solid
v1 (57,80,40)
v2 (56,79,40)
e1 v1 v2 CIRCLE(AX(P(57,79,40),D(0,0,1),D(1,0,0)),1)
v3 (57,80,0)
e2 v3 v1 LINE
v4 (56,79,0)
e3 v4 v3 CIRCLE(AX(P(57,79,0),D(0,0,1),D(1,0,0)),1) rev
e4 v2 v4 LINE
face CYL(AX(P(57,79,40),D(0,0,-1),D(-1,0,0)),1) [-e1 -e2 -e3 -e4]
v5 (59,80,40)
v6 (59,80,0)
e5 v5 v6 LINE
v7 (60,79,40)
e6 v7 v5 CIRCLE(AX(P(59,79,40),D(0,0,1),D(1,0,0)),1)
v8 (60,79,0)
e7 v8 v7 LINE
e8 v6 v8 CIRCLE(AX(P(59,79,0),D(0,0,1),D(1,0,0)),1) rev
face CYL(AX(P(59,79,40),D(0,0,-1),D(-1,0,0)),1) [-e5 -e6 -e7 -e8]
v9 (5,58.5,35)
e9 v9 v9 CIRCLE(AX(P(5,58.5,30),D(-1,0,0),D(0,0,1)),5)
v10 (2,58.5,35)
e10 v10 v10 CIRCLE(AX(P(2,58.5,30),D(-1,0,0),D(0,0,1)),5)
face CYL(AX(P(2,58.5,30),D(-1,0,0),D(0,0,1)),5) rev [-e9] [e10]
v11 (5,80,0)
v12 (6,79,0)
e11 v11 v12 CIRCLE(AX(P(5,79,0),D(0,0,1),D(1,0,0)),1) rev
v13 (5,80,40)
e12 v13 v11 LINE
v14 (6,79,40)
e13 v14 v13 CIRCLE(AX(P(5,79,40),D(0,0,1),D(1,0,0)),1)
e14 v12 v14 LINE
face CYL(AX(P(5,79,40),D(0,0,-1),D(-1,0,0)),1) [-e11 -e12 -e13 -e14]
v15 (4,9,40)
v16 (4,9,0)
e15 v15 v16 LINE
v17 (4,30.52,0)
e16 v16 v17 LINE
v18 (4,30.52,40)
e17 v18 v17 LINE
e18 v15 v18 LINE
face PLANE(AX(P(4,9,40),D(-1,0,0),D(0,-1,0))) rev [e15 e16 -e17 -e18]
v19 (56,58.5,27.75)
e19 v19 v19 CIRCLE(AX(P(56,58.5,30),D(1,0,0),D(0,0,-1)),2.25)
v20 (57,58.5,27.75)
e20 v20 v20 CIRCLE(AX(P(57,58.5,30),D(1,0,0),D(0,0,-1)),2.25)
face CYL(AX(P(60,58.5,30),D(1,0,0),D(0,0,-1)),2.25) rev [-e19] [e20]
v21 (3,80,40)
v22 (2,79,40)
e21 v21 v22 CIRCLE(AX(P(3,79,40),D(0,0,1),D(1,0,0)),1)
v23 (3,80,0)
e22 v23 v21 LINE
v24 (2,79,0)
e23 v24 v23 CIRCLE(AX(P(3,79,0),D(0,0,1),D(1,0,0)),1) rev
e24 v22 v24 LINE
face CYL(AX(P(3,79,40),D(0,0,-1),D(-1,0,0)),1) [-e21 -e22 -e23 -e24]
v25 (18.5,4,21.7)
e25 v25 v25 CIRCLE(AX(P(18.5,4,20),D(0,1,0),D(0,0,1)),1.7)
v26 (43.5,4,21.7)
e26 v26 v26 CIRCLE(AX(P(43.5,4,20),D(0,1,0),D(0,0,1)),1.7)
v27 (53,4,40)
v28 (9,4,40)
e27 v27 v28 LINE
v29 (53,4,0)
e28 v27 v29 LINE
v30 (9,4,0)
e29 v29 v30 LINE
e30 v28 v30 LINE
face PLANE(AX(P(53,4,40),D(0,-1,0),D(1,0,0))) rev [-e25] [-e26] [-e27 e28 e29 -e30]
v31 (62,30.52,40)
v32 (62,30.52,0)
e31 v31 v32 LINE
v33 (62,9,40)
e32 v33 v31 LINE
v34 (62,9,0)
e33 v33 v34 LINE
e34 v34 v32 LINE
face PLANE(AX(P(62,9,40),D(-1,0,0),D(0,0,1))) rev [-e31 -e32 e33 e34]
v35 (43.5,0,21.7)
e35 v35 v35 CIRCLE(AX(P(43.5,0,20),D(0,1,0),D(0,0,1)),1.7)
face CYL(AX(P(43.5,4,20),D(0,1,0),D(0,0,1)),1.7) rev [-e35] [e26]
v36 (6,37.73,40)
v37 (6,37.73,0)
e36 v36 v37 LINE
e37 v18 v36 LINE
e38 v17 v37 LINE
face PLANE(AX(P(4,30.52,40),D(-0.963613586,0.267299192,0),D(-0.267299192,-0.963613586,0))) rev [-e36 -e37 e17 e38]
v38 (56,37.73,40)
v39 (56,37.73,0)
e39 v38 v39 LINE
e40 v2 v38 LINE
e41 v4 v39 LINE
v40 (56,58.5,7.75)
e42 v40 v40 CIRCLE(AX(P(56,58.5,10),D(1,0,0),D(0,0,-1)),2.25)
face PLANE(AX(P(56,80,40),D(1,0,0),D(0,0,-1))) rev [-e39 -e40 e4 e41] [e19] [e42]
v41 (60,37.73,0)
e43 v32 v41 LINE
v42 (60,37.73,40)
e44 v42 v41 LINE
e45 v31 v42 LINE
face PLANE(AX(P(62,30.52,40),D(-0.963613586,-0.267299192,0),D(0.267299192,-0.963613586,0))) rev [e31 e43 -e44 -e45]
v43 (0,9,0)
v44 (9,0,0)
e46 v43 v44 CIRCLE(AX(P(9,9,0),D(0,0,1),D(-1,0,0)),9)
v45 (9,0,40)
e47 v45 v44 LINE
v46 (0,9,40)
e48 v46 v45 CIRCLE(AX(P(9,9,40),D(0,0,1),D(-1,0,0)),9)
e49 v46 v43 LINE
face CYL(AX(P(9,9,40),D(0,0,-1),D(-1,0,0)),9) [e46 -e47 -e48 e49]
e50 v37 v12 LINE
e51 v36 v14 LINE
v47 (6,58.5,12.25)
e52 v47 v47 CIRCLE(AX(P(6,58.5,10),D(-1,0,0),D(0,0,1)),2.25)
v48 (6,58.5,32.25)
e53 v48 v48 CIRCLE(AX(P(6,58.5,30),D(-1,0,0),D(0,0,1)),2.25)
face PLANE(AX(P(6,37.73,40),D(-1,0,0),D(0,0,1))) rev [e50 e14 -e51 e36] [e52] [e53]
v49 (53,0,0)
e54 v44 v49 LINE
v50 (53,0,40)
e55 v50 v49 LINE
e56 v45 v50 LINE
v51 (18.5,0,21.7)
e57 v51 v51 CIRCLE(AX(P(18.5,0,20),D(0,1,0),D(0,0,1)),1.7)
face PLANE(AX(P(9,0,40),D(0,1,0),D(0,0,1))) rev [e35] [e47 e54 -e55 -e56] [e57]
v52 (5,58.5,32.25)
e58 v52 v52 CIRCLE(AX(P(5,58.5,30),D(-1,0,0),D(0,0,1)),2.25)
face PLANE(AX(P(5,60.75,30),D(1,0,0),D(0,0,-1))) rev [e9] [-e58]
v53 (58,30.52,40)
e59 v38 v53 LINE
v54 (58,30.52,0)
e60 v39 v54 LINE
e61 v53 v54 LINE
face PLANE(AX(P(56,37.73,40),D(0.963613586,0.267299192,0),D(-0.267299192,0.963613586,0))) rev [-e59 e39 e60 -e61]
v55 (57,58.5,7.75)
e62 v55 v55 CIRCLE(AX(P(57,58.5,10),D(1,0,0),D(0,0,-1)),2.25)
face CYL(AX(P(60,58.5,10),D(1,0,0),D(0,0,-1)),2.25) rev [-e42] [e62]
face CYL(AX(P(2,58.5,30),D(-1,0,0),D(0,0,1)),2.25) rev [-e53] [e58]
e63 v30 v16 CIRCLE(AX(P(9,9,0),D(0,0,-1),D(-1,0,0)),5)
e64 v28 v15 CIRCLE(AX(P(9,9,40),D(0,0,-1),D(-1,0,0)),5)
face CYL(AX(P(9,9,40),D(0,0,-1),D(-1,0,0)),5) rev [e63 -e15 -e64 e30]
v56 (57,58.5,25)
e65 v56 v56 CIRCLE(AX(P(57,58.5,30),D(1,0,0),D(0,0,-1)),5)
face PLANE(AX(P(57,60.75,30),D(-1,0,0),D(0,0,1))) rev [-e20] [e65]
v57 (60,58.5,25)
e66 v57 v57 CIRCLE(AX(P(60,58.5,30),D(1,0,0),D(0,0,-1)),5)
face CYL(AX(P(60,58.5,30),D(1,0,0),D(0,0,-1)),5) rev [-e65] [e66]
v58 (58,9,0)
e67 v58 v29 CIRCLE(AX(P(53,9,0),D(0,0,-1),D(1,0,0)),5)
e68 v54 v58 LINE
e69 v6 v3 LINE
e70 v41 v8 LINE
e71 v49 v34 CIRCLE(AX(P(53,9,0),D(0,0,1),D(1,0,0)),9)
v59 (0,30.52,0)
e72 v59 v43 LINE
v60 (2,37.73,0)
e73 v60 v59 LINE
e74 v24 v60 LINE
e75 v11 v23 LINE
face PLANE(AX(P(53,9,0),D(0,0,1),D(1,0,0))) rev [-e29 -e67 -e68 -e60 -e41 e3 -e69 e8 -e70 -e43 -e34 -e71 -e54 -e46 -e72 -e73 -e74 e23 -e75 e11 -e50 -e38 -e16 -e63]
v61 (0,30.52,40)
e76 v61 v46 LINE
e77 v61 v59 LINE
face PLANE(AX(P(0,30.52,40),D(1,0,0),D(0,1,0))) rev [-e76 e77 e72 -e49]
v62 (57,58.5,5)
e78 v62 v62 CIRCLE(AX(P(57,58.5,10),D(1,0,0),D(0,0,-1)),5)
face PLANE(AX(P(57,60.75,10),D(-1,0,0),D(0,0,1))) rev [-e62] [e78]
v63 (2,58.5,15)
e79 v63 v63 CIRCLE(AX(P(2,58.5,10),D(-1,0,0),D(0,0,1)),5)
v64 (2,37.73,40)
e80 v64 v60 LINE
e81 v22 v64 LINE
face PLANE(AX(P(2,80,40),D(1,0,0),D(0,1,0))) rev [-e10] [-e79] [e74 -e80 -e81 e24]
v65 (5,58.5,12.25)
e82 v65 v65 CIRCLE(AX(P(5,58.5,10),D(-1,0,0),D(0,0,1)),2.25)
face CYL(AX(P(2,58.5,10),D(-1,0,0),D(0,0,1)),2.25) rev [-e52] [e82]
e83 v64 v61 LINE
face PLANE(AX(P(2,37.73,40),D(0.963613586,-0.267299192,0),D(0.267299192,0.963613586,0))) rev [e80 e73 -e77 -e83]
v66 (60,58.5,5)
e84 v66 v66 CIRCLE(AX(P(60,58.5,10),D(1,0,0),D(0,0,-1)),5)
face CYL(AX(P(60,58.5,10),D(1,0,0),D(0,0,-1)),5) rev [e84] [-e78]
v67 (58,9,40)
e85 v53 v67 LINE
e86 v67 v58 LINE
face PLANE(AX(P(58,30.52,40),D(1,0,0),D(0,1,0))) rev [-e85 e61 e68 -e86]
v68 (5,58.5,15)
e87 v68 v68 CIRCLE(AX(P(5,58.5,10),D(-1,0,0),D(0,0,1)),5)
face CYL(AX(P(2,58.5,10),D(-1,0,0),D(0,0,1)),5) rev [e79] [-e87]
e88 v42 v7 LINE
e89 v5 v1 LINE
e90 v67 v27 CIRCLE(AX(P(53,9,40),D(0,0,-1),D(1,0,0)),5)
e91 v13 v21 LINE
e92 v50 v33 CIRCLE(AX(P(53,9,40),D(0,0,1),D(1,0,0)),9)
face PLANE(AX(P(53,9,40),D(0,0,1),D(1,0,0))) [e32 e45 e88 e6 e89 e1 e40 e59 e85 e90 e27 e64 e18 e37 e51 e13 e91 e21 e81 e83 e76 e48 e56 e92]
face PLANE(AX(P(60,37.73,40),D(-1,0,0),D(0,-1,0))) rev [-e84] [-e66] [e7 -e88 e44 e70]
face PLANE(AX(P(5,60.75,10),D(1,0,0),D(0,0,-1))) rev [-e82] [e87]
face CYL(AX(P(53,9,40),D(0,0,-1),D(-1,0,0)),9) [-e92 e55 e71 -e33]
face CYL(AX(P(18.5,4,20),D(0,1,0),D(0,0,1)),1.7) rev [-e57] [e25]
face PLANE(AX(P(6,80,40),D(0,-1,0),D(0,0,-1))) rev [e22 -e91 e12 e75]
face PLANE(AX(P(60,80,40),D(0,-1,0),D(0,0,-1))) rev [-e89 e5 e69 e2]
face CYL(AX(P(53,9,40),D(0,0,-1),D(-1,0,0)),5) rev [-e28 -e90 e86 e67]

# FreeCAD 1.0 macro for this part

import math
import FreeCAD as App
import Part
import Sketcher
Q = App.Units.Quantity


def edges_at(feature, points):
    """Names of the edges that pass closest to the given points."""
    edges = feature.Shape.Edges
    near = lambda p: min(range(len(edges)), key=lambda i: edges[i].distToShape(Part.Vertex(*p))[0])
    return sorted({f"Edge{near(p) + 1}" for p in points})

doc = App.newDocument("Part")
body = doc.addObject("PartDesign::Body", "Body")

# Sketch on XY plane
sketch1 = doc.addObject("Sketcher::SketchObject", "Sketch")
body.addObject(sketch1)
sketch1.AttachmentSupport = (doc.XY_Plane, [""])
sketch1.MapMode = "FlatFace"
sketch1.addGeometry(Part.LineSegment(App.Vector(9, 0, 0), App.Vector(53, 0, 0)), False)
sketch1.addGeometry(Part.ArcOfCircle(Part.Circle(App.Vector(53, 9, 0), App.Vector(0, 0, 1), 9), math.radians(-90), math.radians(0)), False)
sketch1.addGeometry(Part.LineSegment(App.Vector(62, 9, 0), App.Vector(62, 30.5, 0)), False)
sketch1.addGeometry(Part.LineSegment(App.Vector(62, 30.5, 0), App.Vector(60, 37.7, 0)), False)
sketch1.addGeometry(Part.LineSegment(App.Vector(60, 37.7, 0), App.Vector(60, 80, 0)), False)
sketch1.addGeometry(Part.LineSegment(App.Vector(60, 80, 0), App.Vector(56, 80, 0)), False)
sketch1.addGeometry(Part.LineSegment(App.Vector(56, 80, 0), App.Vector(56, 37.7, 0)), False)
sketch1.addGeometry(Part.LineSegment(App.Vector(56, 37.7, 0), App.Vector(58, 30.5, 0)), False)
sketch1.addGeometry(Part.LineSegment(App.Vector(58, 30.5, 0), App.Vector(58, 9, 0)), False)
sketch1.addGeometry(Part.ArcOfCircle(Part.Circle(App.Vector(53, 9, 0), App.Vector(0, 0, 1), 5), math.radians(-90), math.radians(0)), False)
sketch1.addGeometry(Part.LineSegment(App.Vector(53, 4, 0), App.Vector(9, 4, 0)), False)
sketch1.addGeometry(Part.ArcOfCircle(Part.Circle(App.Vector(9, 9, 0), App.Vector(0, 0, 1), 5), math.radians(180), math.radians(270)), False)
sketch1.addGeometry(Part.LineSegment(App.Vector(4, 9, 0), App.Vector(4, 30.5, 0)), False)
sketch1.addGeometry(Part.LineSegment(App.Vector(4, 30.5, 0), App.Vector(6, 37.7, 0)), False)
sketch1.addGeometry(Part.LineSegment(App.Vector(6, 37.7, 0), App.Vector(6, 80, 0)), False)
sketch1.addGeometry(Part.LineSegment(App.Vector(6, 80, 0), App.Vector(2, 80, 0)), False)
sketch1.addGeometry(Part.LineSegment(App.Vector(2, 80, 0), App.Vector(2, 37.7, 0)), False)
sketch1.addGeometry(Part.LineSegment(App.Vector(2, 37.7, 0), App.Vector(0, 30.5, 0)), False)
sketch1.addGeometry(Part.LineSegment(App.Vector(0, 30.5, 0), App.Vector(0, 9, 0)), False)
sketch1.addGeometry(Part.ArcOfCircle(Part.Circle(App.Vector(9, 9, 0), App.Vector(0, 0, 1), 9), math.radians(180), math.radians(270)), False)
sketch1.addConstraint(Sketcher.Constraint("Tangent", 0, 2, 1, 1))
sketch1.addConstraint(Sketcher.Constraint("Tangent", 1, 2, 2, 1))
sketch1.addConstraint(Sketcher.Constraint("Coincident", 2, 2, 3, 1))
sketch1.addConstraint(Sketcher.Constraint("Coincident", 3, 2, 4, 1))
sketch1.addConstraint(Sketcher.Constraint("Coincident", 4, 2, 5, 1))
sketch1.addConstraint(Sketcher.Constraint("Coincident", 5, 2, 6, 1))
sketch1.addConstraint(Sketcher.Constraint("Coincident", 6, 2, 7, 1))
sketch1.addConstraint(Sketcher.Constraint("Coincident", 7, 2, 8, 1))
sketch1.addConstraint(Sketcher.Constraint("Tangent", 8, 2, 9, 2))
sketch1.addConstraint(Sketcher.Constraint("Tangent", 9, 1, 10, 1))
sketch1.addConstraint(Sketcher.Constraint("Tangent", 10, 2, 11, 2))
sketch1.addConstraint(Sketcher.Constraint("Tangent", 11, 1, 12, 1))
sketch1.addConstraint(Sketcher.Constraint("Coincident", 12, 2, 13, 1))
sketch1.addConstraint(Sketcher.Constraint("Coincident", 13, 2, 14, 1))
sketch1.addConstraint(Sketcher.Constraint("Coincident", 14, 2, 15, 1))
sketch1.addConstraint(Sketcher.Constraint("Coincident", 15, 2, 16, 1))
sketch1.addConstraint(Sketcher.Constraint("Coincident", 16, 2, 17, 1))
sketch1.addConstraint(Sketcher.Constraint("Coincident", 17, 2, 18, 1))
sketch1.addConstraint(Sketcher.Constraint("Tangent", 18, 2, 19, 1))
sketch1.addConstraint(Sketcher.Constraint("Tangent", 19, 2, 0, 1))
sketch1.addConstraint(Sketcher.Constraint("Horizontal", 0))
sketch1.addConstraint(Sketcher.Constraint("Vertical", 2))
sketch1.addConstraint(Sketcher.Constraint("Vertical", 4))
sketch1.addConstraint(Sketcher.Constraint("Horizontal", 5))
sketch1.addConstraint(Sketcher.Constraint("Vertical", 6))
sketch1.addConstraint(Sketcher.Constraint("Vertical", 8))
sketch1.addConstraint(Sketcher.Constraint("Horizontal", 10))
sketch1.addConstraint(Sketcher.Constraint("Vertical", 12))
sketch1.addConstraint(Sketcher.Constraint("Vertical", 14))
sketch1.addConstraint(Sketcher.Constraint("Horizontal", 15))
sketch1.addConstraint(Sketcher.Constraint("Vertical", 16))
sketch1.addConstraint(Sketcher.Constraint("Vertical", 18))
sketch1.addConstraint(Sketcher.Constraint("Coincident", 9, 3, 1, 3))
sketch1.addConstraint(Sketcher.Constraint("Coincident", 19, 3, 11, 3))
sketch1.addConstraint(Sketcher.Constraint("Equal", 9, 11))
sketch1.addConstraint(Sketcher.Constraint("PointOnObject", 0, 2, -1))
sketch1.addConstraint(Sketcher.Constraint("PointOnObject", 17, 2, -2))
sketch1.addConstraint(Sketcher.Constraint("Parallel", 3, 7))
sketch1.addConstraint(Sketcher.Constraint("Parallel", 13, 17))
sketch1.addConstraint(Sketcher.Constraint("Horizontal", 3, 2, 6, 2))
sketch1.addConstraint(Sketcher.Constraint("Horizontal", 2, 2, 7, 2))
sketch1.addConstraint(Sketcher.Constraint("Horizontal", 7, 2, 12, 2))
sketch1.addConstraint(Sketcher.Constraint("Horizontal", 6, 2, 13, 2))
sketch1.addConstraint(Sketcher.Constraint("Horizontal", 5, 2, 14, 2))
sketch1.addConstraint(Sketcher.Constraint("Horizontal", 13, 2, 16, 2))
sketch1.addConstraint(Sketcher.Constraint("Horizontal", 12, 2, 17, 2))
sketch1.addConstraint(Sketcher.Constraint("Equal", 7, 13))
sketch1.addConstraint(Sketcher.Constraint("Radius", 1, Q("9 mm")))
sketch1.addConstraint(Sketcher.Constraint("Radius", 9, Q("5 mm")))
sketch1.addConstraint(Sketcher.Constraint("DistanceX", 0, 1, 0, 2, Q("44 mm")))
sketch1.addConstraint(Sketcher.Constraint("DistanceX", -1, 1, 3, 2, Q("60 mm")))
sketch1.addConstraint(Sketcher.Constraint("DistanceY", -1, 1, 4, 2, Q("80 mm")))
sketch1.addConstraint(Sketcher.Constraint("DistanceY", 2, 1, 2, 2, Q("21.52 mm")))
sketch1.addConstraint(Sketcher.Constraint("DistanceY", 4, 1, 4, 2, Q("42.27 mm")))
pad1 = doc.addObject("PartDesign::Pad", "Pad")
body.addObject(pad1)
pad1.Profile = sketch1
pad1.Length = 40
doc.recompute()

fillet = doc.addObject("PartDesign::Fillet", "Fillet")
body.addObject(fillet)
fillet.Base = (pad1, edges_at(pad1, [
    (2, 80, 20),
    (6, 80, 20),
    (56, 80, 20),
    (60, 80, 20),
]))
fillet.Radius = 1

# Sketch on YZ plane
sketch2 = doc.addObject("Sketcher::SketchObject", "Sketch001")
body.addObject(sketch2)
sketch2.AttachmentSupport = (doc.YZ_Plane, [""])
sketch2.MapMode = "FlatFace"
sketch2.AttachmentOffset = App.Placement(App.Vector(0, 0, 2), App.Rotation())
sketch2.addGeometry(Part.Circle(App.Vector(58.5, 10, 0), App.Vector(0, 0, 1), 2.2), False)
sketch2.addGeometry(Part.Circle(App.Vector(58.5, 30, 0), App.Vector(0, 0, 1), 2.2), False)
sketch2.addConstraint(Sketcher.Constraint("Equal", 0, 1))
sketch2.addConstraint(Sketcher.Constraint("Vertical", 0, 3, 1, 3))
sketch2.addConstraint(Sketcher.Constraint("Diameter", 0, Q("4.5 mm")))
sketch2.addConstraint(Sketcher.Constraint("DistanceY", -1, 1, 0, 3, Q("10 mm")))
sketch2.addConstraint(Sketcher.Constraint("DistanceY", -1, 1, 1, 3, Q("30 mm")))
sketch2.addConstraint(Sketcher.Constraint("DistanceX", -1, 1, 0, 3, Q("58.5 mm")))
doc.recompute()
hole = doc.addObject("PartDesign::Hole", "Hole")
body.addObject(hole)
hole.Profile = sketch2
hole.ThreadType = "None"
hole.Diameter = 4.5
hole.DepthType = "Dimension"
hole.Depth = 8.5
hole.DrillPoint = "Angled"
hole.DrillPointAngle = 118
hole.HoleCutType = "Counterbore"
hole.HoleCutDiameter = 10
hole.HoleCutDepth = 3
hole.Reversed = True

# Sketch on YZ plane
sketch3 = doc.addObject("Sketcher::SketchObject", "Sketch002")
body.addObject(sketch3)
sketch3.AttachmentSupport = (doc.YZ_Plane, [""])
sketch3.MapMode = "FlatFace"
sketch3.AttachmentOffset = App.Placement(App.Vector(0, 0, 60), App.Rotation())
sketch3.addGeometry(Part.Circle(App.Vector(58.5, 30, 0), App.Vector(0, 0, 1), 2.2), False)
sketch3.addGeometry(Part.Circle(App.Vector(58.5, 10, 0), App.Vector(0, 0, 1), 2.2), False)
sketch3.addConstraint(Sketcher.Constraint("Equal", 0, 1))
sketch3.addConstraint(Sketcher.Constraint("Vertical", 0, 3, 1, 3))
sketch3.addConstraint(Sketcher.Constraint("Diameter", 0, Q("4.5 mm")))
sketch3.addConstraint(Sketcher.Constraint("DistanceY", -1, 1, 0, 3, Q("30 mm")))
sketch3.addConstraint(Sketcher.Constraint("DistanceY", -1, 1, 1, 3, Q("10 mm")))
sketch3.addConstraint(Sketcher.Constraint("DistanceX", -1, 1, 0, 3, Q("58.5 mm")))
doc.recompute()
hole2 = doc.addObject("PartDesign::Hole", "Hole001")
body.addObject(hole2)
hole2.Profile = sketch3
hole2.ThreadType = "None"
hole2.Diameter = 4.5
hole2.DepthType = "Dimension"
hole2.Depth = 8.5
hole2.DrillPoint = "Angled"
hole2.DrillPointAngle = 118
hole2.HoleCutType = "Counterbore"
hole2.HoleCutDiameter = 10
hole2.HoleCutDepth = 3

# Sketch on XZ plane
sketch4 = doc.addObject("Sketcher::SketchObject", "Sketch003")
body.addObject(sketch4)
sketch4.AttachmentSupport = (doc.XZ_Plane, [""])
sketch4.MapMode = "FlatFace"
sketch4.AttachmentOffset = App.Placement(App.Vector(0, 0, -4), App.Rotation())
sketch4.addGeometry(Part.Circle(App.Vector(18.5, 20, 0), App.Vector(0, 0, 1), 1.7), False)
sketch4.addGeometry(Part.Circle(App.Vector(43.5, 20, 0), App.Vector(0, 0, 1), 1.7), False)
sketch4.addConstraint(Sketcher.Constraint("Equal", 0, 1))
sketch4.addConstraint(Sketcher.Constraint("Horizontal", 0, 3, 1, 3))
sketch4.addConstraint(Sketcher.Constraint("Diameter", 0, Q("3.4 mm")))
sketch4.addConstraint(Sketcher.Constraint("DistanceY", -1, 1, 0, 3, Q("20 mm")))
sketch4.addConstraint(Sketcher.Constraint("DistanceX", 0, 3, 1, 3, Q("25 mm")))
sketch4.addConstraint(Sketcher.Constraint("DistanceX", -1, 1, 0, 3, Q("18.5 mm")))
doc.recompute()
hole3 = doc.addObject("PartDesign::Hole", "Hole002")
body.addObject(hole3)
hole3.Profile = sketch4
hole3.ThreadType = "None"
hole3.Diameter = 3.4
hole3.DepthType = "Dimension"
hole3.Depth = 8.5
hole3.DrillPoint = "Angled"
hole3.DrillPointAngle = 118
hole3.Reversed = True

doc.recompute()
